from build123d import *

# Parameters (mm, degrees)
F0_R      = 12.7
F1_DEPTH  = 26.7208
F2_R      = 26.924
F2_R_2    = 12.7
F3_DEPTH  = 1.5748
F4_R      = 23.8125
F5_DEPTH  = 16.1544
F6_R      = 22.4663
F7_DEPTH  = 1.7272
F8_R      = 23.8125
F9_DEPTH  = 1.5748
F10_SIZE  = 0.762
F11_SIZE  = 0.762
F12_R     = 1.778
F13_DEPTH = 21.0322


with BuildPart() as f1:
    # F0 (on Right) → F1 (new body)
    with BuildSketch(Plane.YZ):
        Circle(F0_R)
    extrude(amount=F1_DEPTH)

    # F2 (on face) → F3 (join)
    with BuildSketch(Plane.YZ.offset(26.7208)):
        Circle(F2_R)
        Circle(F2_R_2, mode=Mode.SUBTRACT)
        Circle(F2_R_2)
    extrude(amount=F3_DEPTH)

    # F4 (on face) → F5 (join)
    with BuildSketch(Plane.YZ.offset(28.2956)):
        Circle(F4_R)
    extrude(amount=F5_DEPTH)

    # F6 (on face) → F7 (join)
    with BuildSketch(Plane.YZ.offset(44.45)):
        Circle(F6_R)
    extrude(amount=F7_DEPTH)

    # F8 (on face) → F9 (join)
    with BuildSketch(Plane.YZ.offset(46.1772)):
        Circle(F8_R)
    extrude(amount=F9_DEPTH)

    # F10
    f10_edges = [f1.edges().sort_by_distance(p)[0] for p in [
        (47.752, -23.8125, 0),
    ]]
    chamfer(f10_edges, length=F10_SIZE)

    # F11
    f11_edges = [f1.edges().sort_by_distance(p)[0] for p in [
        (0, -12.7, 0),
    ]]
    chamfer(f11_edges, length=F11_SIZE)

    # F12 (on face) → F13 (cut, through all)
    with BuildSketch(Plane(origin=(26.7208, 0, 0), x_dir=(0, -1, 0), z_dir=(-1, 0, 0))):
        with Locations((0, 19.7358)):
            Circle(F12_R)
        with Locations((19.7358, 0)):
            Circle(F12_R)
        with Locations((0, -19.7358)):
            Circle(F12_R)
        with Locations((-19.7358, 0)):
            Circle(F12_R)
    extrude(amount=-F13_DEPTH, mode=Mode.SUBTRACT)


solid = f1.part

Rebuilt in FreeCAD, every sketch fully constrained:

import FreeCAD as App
import Part
import Sketcher
from FreeCAD import Vector
Q = App.Units.Quantity


def edges_at(feature, points):
    """Names of the edges that pass closest to the given points."""
    edges = feature.Shape.Edges
    near = lambda p: min(range(len(edges)), key=lambda i: edges[i].distToShape(Part.Vertex(*p))[0])
    return sorted({f"Edge{near(p) + 1}" for p in points})

doc = App.newDocument("Part")
params = doc.addObject("Spreadsheet::Sheet", "Params")
for row, (alias, value) in enumerate([
    ("sketch1_diameter", "1 in"),
    ("pad1_length", "1.052 in"),
    ("sketch2_diameter", "2.12 in"),
    ("pad2_length", "0.062 in"),
    ("sketch3_diameter", "1.875 in"),
    ("pad3_length", "0.636 in"),
    ("sketch4_diameter", "1.769 in"),
    ("pad4_length", "0.068 in"),
    ("sketch5_diameter", "1.875 in"),
    ("pad5_length", "0.062 in"),
    ("chamfer_size", "0.03 in"),
    ("chamfer2_size", "0.03 in"),
    ("sketch6_diameter", "0.14 in"),
], start=1):
    params.set(f"A{row}", alias)
    params.set(f"B{row}", "=" + value)
    params.setAlias(f"B{row}", alias)

body = doc.addObject("PartDesign::Body", "Body")

sketch1 = doc.addObject("Sketcher::SketchObject", "Sketch")
body.addObject(sketch1)
sketch1.AttachmentSupport = (doc.YZ_Plane, [""])
sketch1.MapMode = "FlatFace"
sketch1.addGeometry(Part.Circle(Vector(0, 0, 0), Vector(0, 0, 1), 12.7), False)
sketch1.addConstraint([
    Sketcher.Constraint("Coincident", 0, 3, -1, 1),
    Sketcher.Constraint("Diameter", 0, Q("1 in")),
])
sketch1.setExpression("Constraints[1]", "Params.sketch1_diameter")
pad1 = doc.addObject("PartDesign::Pad", "Pad")
body.addObject(pad1)
pad1.Profile = sketch1
pad1.setExpression("Length", "Params.pad1_length")

sketch2 = doc.addObject("Sketcher::SketchObject", "Sketch001")
body.addObject(sketch2)
sketch2.AttachmentSupport = (doc.YZ_Plane, [""])
sketch2.MapMode = "FlatFace"
sketch2.AttachmentOffset = App.Placement(Vector(0, 0, 1.052 * 25.4), App.Rotation())
sketch2.addGeometry(Part.Circle(Vector(0, 0, 0), Vector(0, 0, 1), 26.924), False)
sketch2.addConstraint([
    Sketcher.Constraint("Coincident", 0, 3, -1, 1),
    Sketcher.Constraint("Diameter", 0, Q("2.12 in")),
])
sketch2.setExpression("Constraints[1]", "Params.sketch2_diameter")
pad2 = doc.addObject("PartDesign::Pad", "Pad001")
body.addObject(pad2)
pad2.Profile = sketch2
pad2.setExpression("Length", "Params.pad2_length")

sketch3 = doc.addObject("Sketcher::SketchObject", "Sketch002")
body.addObject(sketch3)
sketch3.AttachmentSupport = (doc.YZ_Plane, [""])
sketch3.MapMode = "FlatFace"
sketch3.AttachmentOffset = App.Placement(Vector(0, 0, 1.114 * 25.4), App.Rotation())
sketch3.addGeometry(Part.Circle(Vector(0, 0, 0), Vector(0, 0, 1), 23.8125), False)
sketch3.addConstraint([
    Sketcher.Constraint("Coincident", 0, 3, -1, 1),
    Sketcher.Constraint("Diameter", 0, Q("1.875 in")),
])
sketch3.setExpression("Constraints[1]", "Params.sketch3_diameter")
pad3 = doc.addObject("PartDesign::Pad", "Pad002")
body.addObject(pad3)
pad3.Profile = sketch3
pad3.setExpression("Length", "Params.pad3_length")

sketch4 = doc.addObject("Sketcher::SketchObject", "Sketch003")
body.addObject(sketch4)
sketch4.AttachmentSupport = (doc.YZ_Plane, [""])
sketch4.MapMode = "FlatFace"
sketch4.AttachmentOffset = App.Placement(Vector(0, 0, 1.75 * 25.4), App.Rotation())
sketch4.addGeometry(Part.Circle(Vector(0, 0, 0), Vector(0, 0, 1), 22.4663), False)
sketch4.addConstraint([
    Sketcher.Constraint("Coincident", 0, 3, -1, 1),
    Sketcher.Constraint("Diameter", 0, Q("1.769 in")),
])
sketch4.setExpression("Constraints[1]", "Params.sketch4_diameter")
pad4 = doc.addObject("PartDesign::Pad", "Pad003")
body.addObject(pad4)
pad4.Profile = sketch4
pad4.setExpression("Length", "Params.pad4_length")

sketch5 = doc.addObject("Sketcher::SketchObject", "Sketch004")
body.addObject(sketch5)
sketch5.AttachmentSupport = (doc.YZ_Plane, [""])
sketch5.MapMode = "FlatFace"
sketch5.AttachmentOffset = App.Placement(Vector(0, 0, 1.818 * 25.4), App.Rotation())
sketch5.addGeometry(Part.Circle(Vector(0, 0, 0), Vector(0, 0, 1), 23.8125), False)
sketch5.addConstraint([
    Sketcher.Constraint("Coincident", 0, 3, -1, 1),
    Sketcher.Constraint("Diameter", 0, Q("1.875 in")),
])
sketch5.setExpression("Constraints[1]", "Params.sketch5_diameter")
pad5 = doc.addObject("PartDesign::Pad", "Pad004")
body.addObject(pad5)
pad5.Profile = sketch5
pad5.setExpression("Length", "Params.pad5_length")
doc.recompute()

chamfer = doc.addObject("PartDesign::Chamfer", "Chamfer")
body.addObject(chamfer)
chamfer.Base = (pad5, edges_at(pad5, [(47.752, -23.812, 0)]))
chamfer.setExpression("Size", "Params.chamfer_size")
doc.recompute()

chamfer2 = doc.addObject("PartDesign::Chamfer", "Chamfer001")
body.addObject(chamfer2)
chamfer2.Base = (chamfer, edges_at(chamfer, [(0, -12.7, 0)]))
chamfer2.setExpression("Size", "Params.chamfer2_size")

sketch6 = doc.addObject("Sketcher::SketchObject", "Sketch005")
body.addObject(sketch6)
sketch6.AttachmentSupport = (doc.YZ_Plane, [""])
sketch6.MapMode = "FlatFace"
sketch6.AttachmentOffset = App.Placement(Vector(0, 0, 1.052 * 25.4), App.Rotation())
sketch6.addGeometry([
    Part.Circle(Vector(0, 19.7358, 0), Vector(0, 0, 1), 1.778),
    Part.Circle(Vector(-19.7358, 0, 0), Vector(0, 0, 1), 1.778),
    Part.Circle(Vector(0, -19.7358, 0), Vector(0, 0, 1), 1.778),
    Part.Circle(Vector(19.7358, 0, 0), Vector(0, 0, 1), 1.778),
], False)
sketch6.addConstraint([
    Sketcher.Constraint("Equal", 0, 1),
    Sketcher.Constraint("Equal", 1, 2),
    Sketcher.Constraint("Equal", 2, 3),
    Sketcher.Constraint("Symmetric", 0, 3, 2, 3, -1, 1),
    Sketcher.Constraint("Symmetric", 1, 3, 3, 3, -1, 1),
    Sketcher.Constraint("PointOnObject", 0, 3, -2),
    Sketcher.Constraint("PointOnObject", 1, 3, -1),
    Sketcher.Constraint("Diameter", 0, Q("0.14 in")),
    Sketcher.Constraint("DistanceY", -1, 1, 0, 3, Q("0.777 in")),
    Sketcher.Constraint("DistanceX", 1, 3, -1, 1, Q("0.777 in")),
])
sketch6.setExpression("Constraints[7]", "Params.sketch6_diameter")
pocket1 = doc.addObject("PartDesign::Pocket", "Pocket")
body.addObject(pocket1)
pocket1.Profile = sketch6
pocket1.Type = "ThroughAll"
pocket1.Reversed = True

doc.recompute()
